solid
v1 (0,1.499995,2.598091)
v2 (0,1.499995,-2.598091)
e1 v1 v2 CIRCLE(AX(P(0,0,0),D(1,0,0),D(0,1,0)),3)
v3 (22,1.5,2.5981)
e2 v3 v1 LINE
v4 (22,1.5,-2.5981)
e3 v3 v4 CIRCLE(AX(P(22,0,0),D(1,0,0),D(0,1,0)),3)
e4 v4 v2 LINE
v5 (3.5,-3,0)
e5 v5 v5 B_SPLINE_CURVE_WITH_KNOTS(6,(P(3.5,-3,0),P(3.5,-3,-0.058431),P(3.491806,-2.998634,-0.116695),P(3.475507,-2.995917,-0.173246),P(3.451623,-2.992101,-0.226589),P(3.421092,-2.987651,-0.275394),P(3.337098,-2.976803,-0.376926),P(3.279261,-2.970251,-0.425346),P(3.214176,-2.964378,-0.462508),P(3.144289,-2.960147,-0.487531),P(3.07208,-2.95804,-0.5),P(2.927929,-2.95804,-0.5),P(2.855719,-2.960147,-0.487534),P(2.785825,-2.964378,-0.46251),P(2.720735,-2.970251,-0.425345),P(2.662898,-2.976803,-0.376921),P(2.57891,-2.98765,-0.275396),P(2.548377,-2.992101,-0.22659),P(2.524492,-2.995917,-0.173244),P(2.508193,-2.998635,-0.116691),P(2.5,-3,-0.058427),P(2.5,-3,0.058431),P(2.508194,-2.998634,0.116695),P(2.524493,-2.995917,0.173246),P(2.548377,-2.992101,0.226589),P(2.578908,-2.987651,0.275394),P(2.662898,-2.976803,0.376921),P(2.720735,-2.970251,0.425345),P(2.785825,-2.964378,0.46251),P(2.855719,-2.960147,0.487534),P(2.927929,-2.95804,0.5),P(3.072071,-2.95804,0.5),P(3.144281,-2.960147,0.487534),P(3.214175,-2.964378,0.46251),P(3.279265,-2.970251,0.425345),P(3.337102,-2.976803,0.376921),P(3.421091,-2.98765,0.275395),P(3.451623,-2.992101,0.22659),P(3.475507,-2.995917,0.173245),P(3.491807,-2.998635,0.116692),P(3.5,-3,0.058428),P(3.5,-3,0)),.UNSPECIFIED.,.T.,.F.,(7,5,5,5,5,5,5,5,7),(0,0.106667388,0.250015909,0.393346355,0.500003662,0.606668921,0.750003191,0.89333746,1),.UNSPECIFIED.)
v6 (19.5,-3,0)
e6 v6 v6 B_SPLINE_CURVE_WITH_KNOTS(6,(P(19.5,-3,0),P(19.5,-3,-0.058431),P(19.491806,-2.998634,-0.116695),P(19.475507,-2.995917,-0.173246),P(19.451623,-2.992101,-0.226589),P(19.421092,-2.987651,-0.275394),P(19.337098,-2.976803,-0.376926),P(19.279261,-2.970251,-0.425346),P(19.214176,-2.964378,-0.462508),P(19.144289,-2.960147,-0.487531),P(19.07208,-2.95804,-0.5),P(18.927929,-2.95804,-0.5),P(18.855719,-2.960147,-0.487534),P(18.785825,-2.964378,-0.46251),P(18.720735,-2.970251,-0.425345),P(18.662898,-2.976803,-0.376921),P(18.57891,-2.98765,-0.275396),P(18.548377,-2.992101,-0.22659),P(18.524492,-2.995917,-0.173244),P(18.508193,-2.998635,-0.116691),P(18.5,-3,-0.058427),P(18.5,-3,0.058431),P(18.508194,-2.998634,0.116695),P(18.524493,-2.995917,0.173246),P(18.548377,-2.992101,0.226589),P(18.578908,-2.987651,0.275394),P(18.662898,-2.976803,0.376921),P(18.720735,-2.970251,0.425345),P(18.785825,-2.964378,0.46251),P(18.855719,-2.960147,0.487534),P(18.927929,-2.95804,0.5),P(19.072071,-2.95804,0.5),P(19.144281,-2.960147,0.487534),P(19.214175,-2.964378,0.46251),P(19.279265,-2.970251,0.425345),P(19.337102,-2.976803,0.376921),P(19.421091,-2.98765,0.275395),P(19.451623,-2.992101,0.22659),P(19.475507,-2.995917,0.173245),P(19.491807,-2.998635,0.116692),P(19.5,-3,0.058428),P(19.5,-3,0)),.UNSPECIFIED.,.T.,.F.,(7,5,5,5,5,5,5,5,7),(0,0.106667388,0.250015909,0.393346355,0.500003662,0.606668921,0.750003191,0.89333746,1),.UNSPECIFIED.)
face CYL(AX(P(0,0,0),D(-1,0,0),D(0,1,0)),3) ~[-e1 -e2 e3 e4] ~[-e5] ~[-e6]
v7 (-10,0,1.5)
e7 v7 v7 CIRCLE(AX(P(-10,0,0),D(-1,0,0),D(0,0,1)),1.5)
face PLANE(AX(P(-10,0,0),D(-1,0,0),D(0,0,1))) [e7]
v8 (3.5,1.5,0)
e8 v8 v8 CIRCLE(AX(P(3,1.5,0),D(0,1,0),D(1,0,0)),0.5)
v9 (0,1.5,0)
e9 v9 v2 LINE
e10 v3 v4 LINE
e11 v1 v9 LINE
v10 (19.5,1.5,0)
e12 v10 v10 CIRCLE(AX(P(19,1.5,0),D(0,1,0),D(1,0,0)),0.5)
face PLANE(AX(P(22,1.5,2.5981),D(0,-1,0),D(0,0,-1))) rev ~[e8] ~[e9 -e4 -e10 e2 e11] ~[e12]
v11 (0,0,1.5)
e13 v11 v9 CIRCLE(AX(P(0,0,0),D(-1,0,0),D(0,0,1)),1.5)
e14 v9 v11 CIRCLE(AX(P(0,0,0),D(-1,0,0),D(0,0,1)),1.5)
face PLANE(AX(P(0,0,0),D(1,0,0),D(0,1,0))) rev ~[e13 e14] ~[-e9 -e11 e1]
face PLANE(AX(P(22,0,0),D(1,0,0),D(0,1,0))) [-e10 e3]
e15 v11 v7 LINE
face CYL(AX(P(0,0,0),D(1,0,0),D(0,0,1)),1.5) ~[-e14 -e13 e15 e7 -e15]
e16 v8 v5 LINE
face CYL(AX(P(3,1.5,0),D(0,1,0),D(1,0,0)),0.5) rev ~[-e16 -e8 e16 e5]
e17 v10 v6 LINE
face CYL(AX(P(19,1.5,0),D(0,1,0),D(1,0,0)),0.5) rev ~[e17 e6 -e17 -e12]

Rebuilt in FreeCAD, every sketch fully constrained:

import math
import FreeCAD as App
import Part
import Sketcher
from FreeCAD import Vector

doc = App.newDocument("Part")
body = doc.addObject("PartDesign::Body", "Body")

sketch1 = body.newObject("Sketcher::SketchObject", "Sketch")
sketch1.AttachmentSupport = (doc.getObject("YZ_Plane"), [""])
sketch1.MapMode = "FlatFace"
sketch1.addGeometry(Part.Circle(Vector(0, 0, 0), Vector(0, 0, 1), 3), False)
sketch1.addConstraint([
    Sketcher.Constraint("Coincident", 0, 3, -1, 1),
    Sketcher.Constraint("Diameter", 0, 6.0),
])
pad1 = body.newObject("PartDesign::Pad", "Pad")
pad1.Profile = sketch1
pad1.Length = 22

sketch2 = body.newObject("Sketcher::SketchObject", "Sketch001")
sketch2.AttachmentSupport = (doc.getObject("YZ_Plane"), [""])
sketch2.MapMode = "FlatFace"
sketch2.AttachmentOffset = App.Placement(Vector(0, 0, 22), App.Rotation())
sketch2.addGeometry([
    Part.LineSegment(Vector(1.5, 2.6, 0), Vector(1.5, -2.6, 0)),
    Part.ArcOfCircle(Part.Circle(Vector(0, 0, 0), Vector(0, 0, 1), 3), math.radians(-60), math.radians(60)),
], False)
sketch2.addConstraint([
    Sketcher.Constraint("Coincident", 0, 1, 1, 2),
    Sketcher.Constraint("Coincident", 1, 1, 0, 2),
    Sketcher.Constraint("Vertical", 0),
    Sketcher.Constraint("Coincident", 1, 3, -1, 1),
    Sketcher.Constraint("Radius", 1, 3.0),
    Sketcher.Constraint("DistanceX", -1, 1, 0, 1, 1.5),
])
pocket1 = body.newObject("PartDesign::Pocket", "Pocket")
pocket1.Profile = sketch2
pocket1.Type = "ThroughAll"

sketch3 = body.newObject("Sketcher::SketchObject", "Sketch002")
sketch3.AttachmentSupport = (doc.getObject("YZ_Plane"), [""])
sketch3.MapMode = "FlatFace"
sketch3.addGeometry(Part.Circle(Vector(0, 0, 0), Vector(0, 0, 1), 1.5), False)
sketch3.addConstraint([
    Sketcher.Constraint("Coincident", 0, 3, -1, 1),
    Sketcher.Constraint("Diameter", 0, 3.0),
])
pad2 = body.newObject("PartDesign::Pad", "Pad001")
pad2.Profile = sketch3
pad2.Length = 10
pad2.Reversed = True

sketch4 = body.newObject("Sketcher::SketchObject", "Sketch003")
sketch4.AttachmentSupport = (doc.getObject("XZ_Plane"), [""])
sketch4.MapMode = "FlatFace"
sketch4.AttachmentOffset = App.Placement(Vector(0, 0, -1.5), App.Rotation())
sketch4.addGeometry([
    Part.Circle(Vector(3, 0, 0), Vector(0, 0, 1), 0.5),
    Part.Circle(Vector(19, 0, 0), Vector(0, 0, 1), 0.5),
], False)
sketch4.addConstraint([
    Sketcher.Constraint("Equal", 0, 1),
    Sketcher.Constraint("PointOnObject", 0, 3, -1),
    Sketcher.Constraint("PointOnObject", 1, 3, -1),
    Sketcher.Constraint("Diameter", 0, 1.0),
    Sketcher.Constraint("DistanceX", -1, 1, 0, 3, 3.0),
    Sketcher.Constraint("DistanceX", 0, 3, 1, 3, 16.0),
])
pocket2 = body.newObject("PartDesign::Pocket", "Pocket001")
pocket2.Profile = sketch4
pocket2.Type = "ThroughAll"
pocket2.Reversed = True

doc.recompute()
